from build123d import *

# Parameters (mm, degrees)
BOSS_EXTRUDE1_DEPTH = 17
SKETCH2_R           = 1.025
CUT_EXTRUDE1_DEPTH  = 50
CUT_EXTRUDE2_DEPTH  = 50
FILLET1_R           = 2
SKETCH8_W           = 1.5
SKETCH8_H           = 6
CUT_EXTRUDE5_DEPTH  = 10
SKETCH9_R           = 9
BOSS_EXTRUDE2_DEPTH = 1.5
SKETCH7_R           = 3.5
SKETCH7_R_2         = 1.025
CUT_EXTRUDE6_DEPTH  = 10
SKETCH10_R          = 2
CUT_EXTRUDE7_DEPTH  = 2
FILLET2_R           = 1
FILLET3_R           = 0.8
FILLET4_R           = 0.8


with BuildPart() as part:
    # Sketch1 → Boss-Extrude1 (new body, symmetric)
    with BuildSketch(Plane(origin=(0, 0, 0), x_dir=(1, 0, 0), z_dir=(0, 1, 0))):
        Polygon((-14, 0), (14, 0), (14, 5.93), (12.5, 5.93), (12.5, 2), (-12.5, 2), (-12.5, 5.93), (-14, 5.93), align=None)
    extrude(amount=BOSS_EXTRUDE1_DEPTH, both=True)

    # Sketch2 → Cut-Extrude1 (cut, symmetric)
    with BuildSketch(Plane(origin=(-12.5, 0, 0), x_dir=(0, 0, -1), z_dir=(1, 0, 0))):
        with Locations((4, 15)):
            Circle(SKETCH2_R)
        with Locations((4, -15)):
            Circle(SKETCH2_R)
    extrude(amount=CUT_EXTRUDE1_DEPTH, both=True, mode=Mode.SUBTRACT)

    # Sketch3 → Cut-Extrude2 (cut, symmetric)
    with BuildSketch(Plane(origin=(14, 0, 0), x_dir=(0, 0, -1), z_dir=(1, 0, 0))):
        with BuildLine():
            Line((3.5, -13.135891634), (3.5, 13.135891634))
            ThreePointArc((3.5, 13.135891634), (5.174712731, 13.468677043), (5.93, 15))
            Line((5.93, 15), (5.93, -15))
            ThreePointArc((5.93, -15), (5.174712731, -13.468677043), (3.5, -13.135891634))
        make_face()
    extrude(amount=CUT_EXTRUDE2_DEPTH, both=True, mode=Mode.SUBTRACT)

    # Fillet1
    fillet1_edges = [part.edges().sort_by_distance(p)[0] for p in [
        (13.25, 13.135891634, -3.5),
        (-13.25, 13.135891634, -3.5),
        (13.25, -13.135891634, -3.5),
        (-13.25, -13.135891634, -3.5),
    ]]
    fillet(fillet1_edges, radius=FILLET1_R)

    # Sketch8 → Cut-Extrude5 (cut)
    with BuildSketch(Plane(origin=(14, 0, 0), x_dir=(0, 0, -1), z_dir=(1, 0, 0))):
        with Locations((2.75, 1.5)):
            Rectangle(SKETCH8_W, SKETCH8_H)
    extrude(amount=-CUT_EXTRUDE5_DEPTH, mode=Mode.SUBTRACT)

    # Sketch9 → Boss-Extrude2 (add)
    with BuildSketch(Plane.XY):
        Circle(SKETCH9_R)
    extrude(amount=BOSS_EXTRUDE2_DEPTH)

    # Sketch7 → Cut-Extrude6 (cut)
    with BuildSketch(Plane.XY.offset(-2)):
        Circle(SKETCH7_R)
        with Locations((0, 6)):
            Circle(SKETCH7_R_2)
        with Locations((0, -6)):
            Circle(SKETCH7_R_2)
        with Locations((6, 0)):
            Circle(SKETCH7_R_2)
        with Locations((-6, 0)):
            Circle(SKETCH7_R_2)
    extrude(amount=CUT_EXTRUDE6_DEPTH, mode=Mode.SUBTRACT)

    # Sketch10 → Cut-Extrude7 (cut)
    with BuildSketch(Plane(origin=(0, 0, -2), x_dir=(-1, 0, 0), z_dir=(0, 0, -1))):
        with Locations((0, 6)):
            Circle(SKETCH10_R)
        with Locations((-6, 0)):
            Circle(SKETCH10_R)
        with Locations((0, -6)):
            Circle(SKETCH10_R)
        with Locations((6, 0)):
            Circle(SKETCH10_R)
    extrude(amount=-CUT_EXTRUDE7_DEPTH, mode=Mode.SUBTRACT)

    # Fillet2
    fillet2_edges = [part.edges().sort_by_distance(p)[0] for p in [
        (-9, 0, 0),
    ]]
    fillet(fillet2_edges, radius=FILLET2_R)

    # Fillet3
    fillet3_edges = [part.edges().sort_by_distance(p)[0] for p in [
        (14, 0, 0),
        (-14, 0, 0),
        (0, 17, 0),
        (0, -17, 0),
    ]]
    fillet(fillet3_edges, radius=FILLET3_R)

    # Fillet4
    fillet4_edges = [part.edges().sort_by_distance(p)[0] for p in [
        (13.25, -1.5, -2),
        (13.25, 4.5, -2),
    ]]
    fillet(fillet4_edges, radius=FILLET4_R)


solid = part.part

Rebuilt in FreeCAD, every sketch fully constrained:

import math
import FreeCAD as App
import Part
import Sketcher
from FreeCAD import Vector
Q = App.Units.Quantity


def edges_at(feature, points):
    """Names of the edges that pass closest to the given points."""
    edges = feature.Shape.Edges
    near = lambda p: min(range(len(edges)), key=lambda i: edges[i].distToShape(Part.Vertex(*p))[0])
    return sorted({f"Edge{near(p) + 1}" for p in points})


def add_polygon(sketch, points):
    """Adds a closed chain of lines whose ends are joined by coincident constraints."""
    first, n = sketch.GeometryCount, len(points)
    for a, b in zip(points, points[1:] + points[:1]):
        sketch.addGeometry(Part.LineSegment(App.Vector(*a, 0), App.Vector(*b, 0)), False)
    for i in range(n):
        sketch.addConstraint(Sketcher.Constraint("Coincident", first + i, 2, first + (i + 1) % n, 1))

doc = App.newDocument("Part")
body = doc.addObject("PartDesign::Body", "Body")

# Sketch on XZ plane
sketch1 = doc.addObject("Sketcher::SketchObject", "Sketch")
body.addObject(sketch1)
sketch1.AttachmentSupport = (doc.XZ_Plane, [""])
sketch1.MapMode = "FlatFace"
add_polygon(sketch1, [(-14, 0), (14, 0), (14, -5.9), (12.5, -5.9), (12.5, -2), (-12.5, -2), (-12.5, -5.9), (-14, -5.9)])  # lines 0-7
sketch1.addConstraint(Sketcher.Constraint("Horizontal", 0))
sketch1.addConstraint(Sketcher.Constraint("Vertical", 1))
sketch1.addConstraint(Sketcher.Constraint("Horizontal", 2))
sketch1.addConstraint(Sketcher.Constraint("Vertical", 3))
sketch1.addConstraint(Sketcher.Constraint("Horizontal", 4))
sketch1.addConstraint(Sketcher.Constraint("Vertical", 5))
sketch1.addConstraint(Sketcher.Constraint("Horizontal", 6))
sketch1.addConstraint(Sketcher.Constraint("Vertical", 7))
sketch1.addConstraint(Sketcher.Constraint("Symmetric", 0, 2, 7, 2, -1, 1))
sketch1.addConstraint(Sketcher.Constraint("Symmetric", 2, 2, 5, 2, -2))
sketch1.addConstraint(Sketcher.Constraint("DistanceX", 0, 1, 0, 2, Q("28 mm")))
sketch1.addConstraint(Sketcher.Constraint("DistanceX", 4, 2, 4, 1, Q("25 mm")))
sketch1.addConstraint(Sketcher.Constraint("DistanceY", 3, 2, -1, 1, Q("2 mm")))
sketch1.addConstraint(Sketcher.Constraint("DistanceY", 1, 2, 1, 1, Q("5.93 mm")))
pad1 = doc.addObject("PartDesign::Pad", "Pad")
body.addObject(pad1)
pad1.Profile = sketch1
pad1.Length = 34
pad1.Midplane = True

# Sketch on YZ plane
sketch2 = doc.addObject("Sketcher::SketchObject", "Sketch001")
body.addObject(sketch2)
sketch2.AttachmentSupport = (doc.YZ_Plane, [""])
sketch2.MapMode = "FlatFace"
sketch2.AttachmentOffset = App.Placement(Vector(0, 0, -12.5), App.Rotation())
sketch2.addGeometry(Part.Circle(Vector(15, -4, 0), Vector(0, 0, 1), 1), False)
sketch2.addGeometry(Part.Circle(Vector(-15, -4, 0), Vector(0, 0, 1), 1), False)
sketch2.addConstraint(Sketcher.Constraint("Equal", 0, 1))
sketch2.addConstraint(Sketcher.Constraint("Symmetric", 0, 3, 1, 3, -2))
sketch2.addConstraint(Sketcher.Constraint("Diameter", 0, Q("2.05 mm")))
sketch2.addConstraint(Sketcher.Constraint("DistanceX", -1, 1, 0, 3, Q("15 mm")))
sketch2.addConstraint(Sketcher.Constraint("DistanceY", 0, 3, -1, 1, Q("4 mm")))
pocket1 = doc.addObject("PartDesign::Pocket", "Pocket")
body.addObject(pocket1)
pocket1.Profile = sketch2
pocket1.Length = 100
pocket1.Midplane = True

# Sketch on YZ plane
sketch3 = doc.addObject("Sketcher::SketchObject", "Sketch002")
body.addObject(sketch3)
sketch3.AttachmentSupport = (doc.YZ_Plane, [""])
sketch3.MapMode = "FlatFace"
sketch3.AttachmentOffset = App.Placement(Vector(0, 0, 14), App.Rotation())
sketch3.addGeometry(Part.LineSegment(Vector(13.1, -3.5, 0), Vector(-13.1, -3.5, 0)), False)
sketch3.addGeometry(Part.ArcOfCircle(Part.Circle(Vector(-15, -4, 0), Vector(0, 0, 1), 1.9), math.radians(-90), math.radians(15)), False)
sketch3.addGeometry(Part.LineSegment(Vector(-15, -5.9, 0), Vector(15, -5.9, 0)), False)
sketch3.addGeometry(Part.ArcOfCircle(Part.Circle(Vector(15, -4, 0), Vector(0, 0, 1), 1.9), math.radians(165), math.radians(270)), False)
sketch3.addConstraint(Sketcher.Constraint("Coincident", 0, 2, 1, 2))
sketch3.addConstraint(Sketcher.Constraint("Tangent", 1, 1, 2, 1))
sketch3.addConstraint(Sketcher.Constraint("Tangent", 2, 2, 3, 2))
sketch3.addConstraint(Sketcher.Constraint("Coincident", 3, 1, 0, 1))
sketch3.addConstraint(Sketcher.Constraint("Horizontal", 0))
sketch3.addConstraint(Sketcher.Constraint("Horizontal", 2))
sketch3.addConstraint(Sketcher.Constraint("Equal", 1, 3))
sketch3.addConstraint(Sketcher.Constraint("DistanceX", 2, 1, 2, 2, Q("30 mm")))
sketch3.addConstraint(Sketcher.Constraint("Radius", 1, Q("1.93 mm")))
sketch3.addConstraint(Sketcher.Constraint("DistanceX", 1, 3, -1, 1, Q("15 mm")))
sketch3.addConstraint(Sketcher.Constraint("DistanceY", 1, 3, -1, 1, Q("4 mm")))
sketch3.addConstraint(Sketcher.Constraint("DistanceY", 0, 2, -1, 1, Q("3.5 mm")))
pocket2 = doc.addObject("PartDesign::Pocket", "Pocket001")
body.addObject(pocket2)
pocket2.Profile = sketch3
pocket2.Length = 100
pocket2.Midplane = True
doc.recompute()

fillet = doc.addObject("PartDesign::Fillet", "Fillet")
body.addObject(fillet)
fillet.Base = (pocket2, edges_at(pocket2, [
    (13.25, 13.136, -3.5),
    (-13.25, 13.136, -3.5),
    (13.25, -13.136, -3.5),
    (-13.25, -13.136, -3.5),
]))
fillet.Radius = 2

# Sketch on YZ plane
sketch4 = doc.addObject("Sketcher::SketchObject", "Sketch003")
body.addObject(sketch4)
sketch4.AttachmentSupport = (doc.YZ_Plane, [""])
sketch4.MapMode = "FlatFace"
sketch4.AttachmentOffset = App.Placement(Vector(0, 0, 14), App.Rotation())
add_polygon(sketch4, [(4.5, -2), (-1.5, -2), (-1.5, -3.5), (4.5, -3.5)])  # lines 0-3
sketch4.addConstraint(Sketcher.Constraint("Horizontal", 0))
sketch4.addConstraint(Sketcher.Constraint("Vertical", 1))
sketch4.addConstraint(Sketcher.Constraint("Horizontal", 2))
sketch4.addConstraint(Sketcher.Constraint("Vertical", 3))
sketch4.addConstraint(Sketcher.Constraint("DistanceX", 0, 2, 0, 1, Q("6 mm")))
sketch4.addConstraint(Sketcher.Constraint("DistanceY", 1, 2, 1, 1, Q("1.5 mm")))
sketch4.addConstraint(Sketcher.Constraint("DistanceY", 0, 2, -1, 1, Q("2 mm")))
sketch4.addConstraint(Sketcher.Constraint("DistanceX", 0, 2, -1, 1, Q("1.5 mm")))
pocket3 = doc.addObject("PartDesign::Pocket", "Pocket002")
body.addObject(pocket3)
pocket3.Profile = sketch4
pocket3.Length = 10

# Sketch on XY plane
sketch5 = doc.addObject("Sketcher::SketchObject", "Sketch004")
body.addObject(sketch5)
sketch5.AttachmentSupport = (doc.XY_Plane, [""])
sketch5.MapMode = "FlatFace"
sketch5.addGeometry(Part.Circle(Vector(0, 0, 0), Vector(0, 0, 1), 9), False)
sketch5.addConstraint(Sketcher.Constraint("Coincident", 0, 3, -1, 1))
sketch5.addConstraint(Sketcher.Constraint("Diameter", 0, Q("18 mm")))
pad2 = doc.addObject("PartDesign::Pad", "Pad001")
body.addObject(pad2)
pad2.Profile = sketch5
pad2.Length = 1.5

# Sketch on XY plane
sketch6 = doc.addObject("Sketcher::SketchObject", "Sketch005")
body.addObject(sketch6)
sketch6.AttachmentSupport = (doc.XY_Plane, [""])
sketch6.MapMode = "FlatFace"
sketch6.AttachmentOffset = App.Placement(Vector(0, 0, -2), App.Rotation())
sketch6.addGeometry(Part.Circle(Vector(0, 0, 0), Vector(0, 0, 1), 3.5), False)
sketch6.addGeometry(Part.Circle(Vector(0, 6, 0), Vector(0, 0, 1), 1), False)
sketch6.addGeometry(Part.Circle(Vector(0, -6, 0), Vector(0, 0, 1), 1), False)
sketch6.addGeometry(Part.Circle(Vector(6, 0, 0), Vector(0, 0, 1), 1), False)
sketch6.addGeometry(Part.Circle(Vector(-6, 0, 0), Vector(0, 0, 1), 1), False)
sketch6.addConstraint(Sketcher.Constraint("Coincident", 0, 3, -1, 1))
sketch6.addConstraint(Sketcher.Constraint("Equal", 1, 2))
sketch6.addConstraint(Sketcher.Constraint("Equal", 2, 3))
sketch6.addConstraint(Sketcher.Constraint("Equal", 3, 4))
sketch6.addConstraint(Sketcher.Constraint("Symmetric", 1, 3, 2, 3, -1, 1))
sketch6.addConstraint(Sketcher.Constraint("Symmetric", 3, 3, 4, 3, -1, 1))
sketch6.addConstraint(Sketcher.Constraint("PointOnObject", 1, 3, -2))
sketch6.addConstraint(Sketcher.Constraint("PointOnObject", 3, 3, -1))
sketch6.addConstraint(Sketcher.Constraint("Diameter", 0, Q("7 mm")))
sketch6.addConstraint(Sketcher.Constraint("Diameter", 1, Q("2.05 mm")))
sketch6.addConstraint(Sketcher.Constraint("DistanceY", -1, 1, 1, 3, Q("6 mm")))
sketch6.addConstraint(Sketcher.Constraint("DistanceX", -1, 1, 3, 3, Q("6 mm")))
pocket4 = doc.addObject("PartDesign::Pocket", "Pocket003")
body.addObject(pocket4)
pocket4.Profile = sketch6
pocket4.Length = 10
pocket4.Reversed = True

# Sketch on XY plane
sketch7 = doc.addObject("Sketcher::SketchObject", "Sketch006")
body.addObject(sketch7)
sketch7.AttachmentSupport = (doc.XY_Plane, [""])
sketch7.MapMode = "FlatFace"
sketch7.AttachmentOffset = App.Placement(Vector(0, 0, -2), App.Rotation())
sketch7.addGeometry(Part.Circle(Vector(0, 6, 0), Vector(0, 0, 1), 2), False)
sketch7.addGeometry(Part.Circle(Vector(6, 0, 0), Vector(0, 0, 1), 2), False)
sketch7.addGeometry(Part.Circle(Vector(0, -6, 0), Vector(0, 0, 1), 2), False)
sketch7.addGeometry(Part.Circle(Vector(-6, 0, 0), Vector(0, 0, 1), 2), False)
sketch7.addConstraint(Sketcher.Constraint("Equal", 0, 1))
sketch7.addConstraint(Sketcher.Constraint("Equal", 1, 2))
sketch7.addConstraint(Sketcher.Constraint("Equal", 2, 3))
sketch7.addConstraint(Sketcher.Constraint("Symmetric", 0, 3, 2, 3, -1, 1))
sketch7.addConstraint(Sketcher.Constraint("Symmetric", 1, 3, 3, 3, -1, 1))
sketch7.addConstraint(Sketcher.Constraint("PointOnObject", 0, 3, -2))
sketch7.addConstraint(Sketcher.Constraint("PointOnObject", 1, 3, -1))
sketch7.addConstraint(Sketcher.Constraint("Diameter", 0, Q("4 mm")))
sketch7.addConstraint(Sketcher.Constraint("DistanceY", -1, 1, 0, 3, Q("6 mm")))
sketch7.addConstraint(Sketcher.Constraint("DistanceX", -1, 1, 1, 3, Q("6 mm")))
pocket5 = doc.addObject("PartDesign::Pocket", "Pocket004")
body.addObject(pocket5)
pocket5.Profile = sketch7
pocket5.Length = 2
pocket5.Reversed = True
doc.recompute()

fillet2 = doc.addObject("PartDesign::Fillet", "Fillet001")
body.addObject(fillet2)
fillet2.Base = (pocket5, edges_at(pocket5, [(-9, 0, 0)]))
fillet2.Radius = 1
doc.recompute()

fillet3 = doc.addObject("PartDesign::Fillet", "Fillet002")
body.addObject(fillet3)
fillet3.Base = (fillet2, edges_at(fillet2, [
    (14, 0, 0),
    (-14, 0, 0),
    (0, 17, 0),
    (0, -17, 0),
]))
fillet3.Radius = 0.8
doc.recompute()

fillet4 = doc.addObject("PartDesign::Fillet", "Fillet003")
body.addObject(fillet4)
fillet4.Base = (fillet3, edges_at(fillet3, [(13.25, -1.5, -2), (13.25, 4.5, -2)]))
fillet4.Radius = 0.8

doc.recompute()
